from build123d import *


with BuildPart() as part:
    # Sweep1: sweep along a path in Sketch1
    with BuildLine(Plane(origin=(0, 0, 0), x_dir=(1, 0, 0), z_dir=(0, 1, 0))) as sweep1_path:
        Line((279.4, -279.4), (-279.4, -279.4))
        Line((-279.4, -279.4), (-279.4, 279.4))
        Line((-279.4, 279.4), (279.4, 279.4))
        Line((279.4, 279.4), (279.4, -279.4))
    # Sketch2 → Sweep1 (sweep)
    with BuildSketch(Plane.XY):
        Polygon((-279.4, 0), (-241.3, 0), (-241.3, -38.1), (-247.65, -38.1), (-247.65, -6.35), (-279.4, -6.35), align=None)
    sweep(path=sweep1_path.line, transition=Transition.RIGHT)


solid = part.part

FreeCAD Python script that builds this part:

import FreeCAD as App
import Part
import Sketcher

V = App.Vector
Q = App.Units.Quantity


def add_polygon(sketch, points):
    """Adds a closed chain of lines whose ends are joined by coincident constraints."""
    first, n = sketch.GeometryCount, len(points)
    for a, b in zip(points, points[1:] + points[:1]):
        sketch.addGeometry(Part.LineSegment(App.Vector(*a, 0), App.Vector(*b, 0)), False)
    for i in range(n):
        sketch.addConstraint(Sketcher.Constraint("Coincident", first + i, 2, first + (i + 1) % n, 1))

doc = App.newDocument("Part")
params = doc.addObject("Spreadsheet::Sheet", "Params")
for row, (alias, value) in enumerate([
    ("sketch1_width", "1.5 in"),
    ("sketch1_width2", "1.25 in"),
    ("sketch2_width", "22 in"),
], start=1):
    params.set(f"A{row}", alias)
    params.set(f"B{row}", "=" + value)
    params.setAlias(f"B{row}", alias)

body = doc.addObject("PartDesign::Body", "Body")

sketch1 = body.newObject("Sketcher::SketchObject", "Sketch")
sketch1.AttachmentSupport = (doc.getObject("XY_Plane"), [""])
sketch1.MapMode = "FlatFace"
add_polygon(sketch1, [(-241, 0), (-279, 0), (-279, -6), (-248, -6), (-248, -38), (-241, -38)])
sketch1.addConstraint([
    Sketcher.Constraint("Horizontal", 0),
    Sketcher.Constraint("Vertical", 1),
    Sketcher.Constraint("Horizontal", 2),
    Sketcher.Constraint("Vertical", 3),
    Sketcher.Constraint("Horizontal", 4),
    Sketcher.Constraint("Vertical", 5),
    Sketcher.Constraint("PointOnObject", 0, 2, -1),
    Sketcher.Constraint("Equal", 4, 1),
    Sketcher.Constraint("Equal", 2, 3),
    Sketcher.Constraint("DistanceX", 0, 2, 0, 1, Q("1.5 in")),
    Sketcher.Constraint("DistanceX", 0, 2, -1, 1, Q("11 in")),
    Sketcher.Constraint("DistanceX", 2, 1, 2, 2, Q("1.25 in")),
])
sketch1.setExpression("Constraints[15]", "Params.sketch1_width")
sketch1.setExpression("Constraints[17]", "Params.sketch1_width2")

sketch2 = body.newObject("Sketcher::SketchObject", "Sketch001")
sketch2.AttachmentSupport = (doc.getObject("XZ_Plane"), [""])
sketch2.MapMode = "FlatFace"
add_polygon(sketch2, [(279, 279), (-279, 279), (-279, -279), (279, -279)])
sketch2.addConstraint([
    Sketcher.Constraint("Horizontal", 0),
    Sketcher.Constraint("Vertical", 1),
    Sketcher.Constraint("Horizontal", 2),
    Sketcher.Constraint("Vertical", 3),
    Sketcher.Constraint("Symmetric", 0, 2, 2, 2, -1, 1),
    Sketcher.Constraint("Equal", 2, 1),
    Sketcher.Constraint("DistanceX", 0, 2, 0, 1, Q("22 in")),
])
sketch2.setExpression("Constraints[10]", "Params.sketch2_width")
doc.recompute()

additivepipe = body.newObject("PartDesign::AdditivePipe", "AdditivePipe")
additivepipe.Profile = sketch1
additivepipe.Spine = (sketch2, ["Edge1", "Edge2", "Edge3", "Edge4"])
additivepipe.Transition = "Right corner"

doc.recompute()
